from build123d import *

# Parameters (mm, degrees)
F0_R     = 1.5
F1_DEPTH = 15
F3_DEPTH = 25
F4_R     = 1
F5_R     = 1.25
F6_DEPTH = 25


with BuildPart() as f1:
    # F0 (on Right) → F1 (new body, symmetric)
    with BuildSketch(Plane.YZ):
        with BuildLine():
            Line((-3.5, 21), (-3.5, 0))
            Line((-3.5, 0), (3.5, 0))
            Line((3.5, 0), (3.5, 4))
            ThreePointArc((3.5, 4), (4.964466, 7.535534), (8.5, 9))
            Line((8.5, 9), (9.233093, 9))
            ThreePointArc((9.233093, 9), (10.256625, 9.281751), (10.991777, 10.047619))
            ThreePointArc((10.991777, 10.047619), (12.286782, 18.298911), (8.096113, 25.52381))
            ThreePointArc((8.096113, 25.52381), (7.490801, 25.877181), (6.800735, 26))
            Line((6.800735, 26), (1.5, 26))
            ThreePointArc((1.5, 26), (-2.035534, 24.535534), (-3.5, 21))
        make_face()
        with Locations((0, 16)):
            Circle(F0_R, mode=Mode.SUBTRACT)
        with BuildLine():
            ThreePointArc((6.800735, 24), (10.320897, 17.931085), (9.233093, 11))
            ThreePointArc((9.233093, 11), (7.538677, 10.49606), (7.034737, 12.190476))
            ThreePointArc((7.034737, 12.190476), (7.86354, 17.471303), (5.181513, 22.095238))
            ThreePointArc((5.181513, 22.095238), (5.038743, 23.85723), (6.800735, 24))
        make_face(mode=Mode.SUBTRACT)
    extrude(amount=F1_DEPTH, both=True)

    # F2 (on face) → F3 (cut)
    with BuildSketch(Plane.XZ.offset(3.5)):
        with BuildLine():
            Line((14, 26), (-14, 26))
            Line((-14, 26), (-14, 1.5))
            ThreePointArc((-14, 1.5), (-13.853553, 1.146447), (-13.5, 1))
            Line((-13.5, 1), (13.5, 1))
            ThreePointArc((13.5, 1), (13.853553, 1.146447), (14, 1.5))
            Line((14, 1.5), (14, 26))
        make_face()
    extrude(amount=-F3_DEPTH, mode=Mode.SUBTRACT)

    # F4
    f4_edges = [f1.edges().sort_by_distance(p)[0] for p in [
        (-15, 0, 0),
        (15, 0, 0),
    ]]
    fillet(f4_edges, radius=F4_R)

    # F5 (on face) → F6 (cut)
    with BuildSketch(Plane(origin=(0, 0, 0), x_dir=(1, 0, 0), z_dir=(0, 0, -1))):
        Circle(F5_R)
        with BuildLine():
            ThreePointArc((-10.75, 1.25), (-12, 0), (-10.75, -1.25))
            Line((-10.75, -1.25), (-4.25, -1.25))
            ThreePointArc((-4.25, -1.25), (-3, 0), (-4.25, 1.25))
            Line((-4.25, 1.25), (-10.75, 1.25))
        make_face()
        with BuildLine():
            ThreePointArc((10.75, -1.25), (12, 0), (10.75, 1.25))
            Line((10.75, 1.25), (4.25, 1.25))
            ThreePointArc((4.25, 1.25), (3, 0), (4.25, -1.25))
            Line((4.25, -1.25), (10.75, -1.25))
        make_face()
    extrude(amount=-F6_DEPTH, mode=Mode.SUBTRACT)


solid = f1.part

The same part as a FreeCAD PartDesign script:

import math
import FreeCAD as App
import Part
import Sketcher

V = App.Vector
Q = App.Units.Quantity


def edges_at(feature, points):
    """Names of the edges that pass closest to the given points."""
    edges = feature.Shape.Edges
    near = lambda p: min(range(len(edges)), key=lambda i: edges[i].distToShape(Part.Vertex(*p))[0])
    return sorted({f"Edge{near(p) + 1}" for p in points})

doc = App.newDocument("Part")
body = doc.addObject("PartDesign::Body", "Body")

# Sketch on YZ plane
sketch1 = body.newObject("Sketcher::SketchObject", "Sketch")
sketch1.AttachmentSupport = (doc.getObject("YZ_Plane"), [""])
sketch1.MapMode = "FlatFace"
sketch1.addGeometry(Part.LineSegment(V(-3.5, 21, 0), V(-3.5, 0, 0)), False)
sketch1.addGeometry(Part.LineSegment(V(-3.5, 0, 0), V(3.5, 0, 0)), False)
sketch1.addGeometry(Part.LineSegment(V(3.5, 0, 0), V(3.5, 4, 0)), False)
sketch1.addGeometry(Part.ArcOfCircle(Part.Circle(V(8.5, 4, 0), V(0, 0, 1), 5), math.radians(90), math.radians(180)), False)
sketch1.addGeometry(Part.LineSegment(V(8.5, 9, 0), V(9.2, 9, 0)), False)
sketch1.addGeometry(Part.ArcOfCircle(Part.Circle(V(9.2, 11, 0), V(0, 0, 1), 2), math.radians(-90), math.radians(-28)), False)
sketch1.addGeometry(Part.ArcOfCircle(Part.Circle(V(0, 16, 0), V(0, 0, 1), 12.5), math.radians(-28), math.radians(50)), False)
sketch1.addGeometry(Part.ArcOfCircle(Part.Circle(V(6.8, 24, 0), V(0, 0, 1), 2), math.radians(50), math.radians(90)), False)
sketch1.addGeometry(Part.LineSegment(V(6.8, 26, 0), V(1.5, 26, 0)), False)
sketch1.addGeometry(Part.ArcOfCircle(Part.Circle(V(1.5, 21, 0), V(0, 0, 1), 5), math.radians(90), math.radians(180)), False)
sketch1.addGeometry(Part.Circle(V(0, 16, 0), V(0, 0, 1), 1.5), False)
sketch1.addGeometry(Part.ArcOfCircle(Part.Circle(V(6, 23, 0), V(0, 0, 1), 1.2), math.radians(50), math.radians(230)), False)
sketch1.addGeometry(Part.ArcOfCircle(Part.Circle(V(0, 16, 0), V(0, 0, 1), 10.5), math.radians(-28), math.radians(50)), False)
sketch1.addGeometry(Part.ArcOfCircle(Part.Circle(V(8.1, 11.6, 0), V(0, 0, 1), 1.3), math.radians(152), math.radians(332)), False)
sketch1.addGeometry(Part.ArcOfCircle(Part.Circle(V(0, 16, 0), V(0, 0, 1), 8), math.radians(-28), math.radians(50)), False)
sketch1.addConstraint(Sketcher.Constraint("Coincident", 0, 2, 1, 1))
sketch1.addConstraint(Sketcher.Constraint("Coincident", 1, 2, 2, 1))
sketch1.addConstraint(Sketcher.Constraint("Tangent", 2, 2, 3, 2))
sketch1.addConstraint(Sketcher.Constraint("Tangent", 3, 1, 4, 1))
sketch1.addConstraint(Sketcher.Constraint("Tangent", 4, 2, 5, 1))
sketch1.addConstraint(Sketcher.Constraint("Tangent", 5, 2, 6, 1))
sketch1.addConstraint(Sketcher.Constraint("Tangent", 6, 2, 7, 1))
sketch1.addConstraint(Sketcher.Constraint("Tangent", 7, 2, 8, 1))
sketch1.addConstraint(Sketcher.Constraint("Tangent", 8, 2, 9, 1))
sketch1.addConstraint(Sketcher.Constraint("Tangent", 9, 2, 0, 1))
sketch1.addConstraint(Sketcher.Constraint("Tangent", 11, 1, 12, 2))
sketch1.addConstraint(Sketcher.Constraint("Tangent", 12, 1, 13, 2))
sketch1.addConstraint(Sketcher.Constraint("Tangent", 13, 1, 14, 1))
sketch1.addConstraint(Sketcher.Constraint("Tangent", 14, 2, 11, 2))
sketch1.addConstraint(Sketcher.Constraint("Vertical", 0))
sketch1.addConstraint(Sketcher.Constraint("Horizontal", 1))
sketch1.addConstraint(Sketcher.Constraint("Vertical", 2))
sketch1.addConstraint(Sketcher.Constraint("Horizontal", 4))
sketch1.addConstraint(Sketcher.Constraint("Horizontal", 8))
sketch1.addConstraint(Sketcher.Constraint("Coincident", 10, 3, 6, 3))
sketch1.addConstraint(Sketcher.Constraint("Coincident", 12, 3, 6, 3))
sketch1.addConstraint(Sketcher.Constraint("Coincident", 14, 3, 6, 3))
sketch1.addConstraint(Sketcher.Constraint("Coincident", 11, 1, 7, 3))
sketch1.addConstraint(Sketcher.Constraint("Coincident", 12, 1, 5, 3))
sketch1.addConstraint(Sketcher.Constraint("Equal", 3, 9))
sketch1.addConstraint(Sketcher.Constraint("Symmetric", 0, 2, 1, 2, -1, 1))
sketch1.addConstraint(Sketcher.Constraint("PointOnObject", 6, 3, -2))
sketch1.addConstraint(Sketcher.Constraint("Diameter", 10, Q("3 mm")))
sketch1.addConstraint(Sketcher.Constraint("Radius", 3, Q("5 mm")))
sketch1.addConstraint(Sketcher.Constraint("Radius", 14, Q("8.000001 mm")))
sketch1.addConstraint(Sketcher.Constraint("Radius", 6, Q("12.5 mm")))
sketch1.addConstraint(Sketcher.Constraint("Radius", 12, Q("10.5 mm")))
sketch1.addConstraint(Sketcher.Constraint("DistanceX", 1, 1, 1, 2, Q("7 mm")))
sketch1.addConstraint(Sketcher.Constraint("DistanceY", 0, 2, 0, 1, Q("21 mm")))
sketch1.addConstraint(Sketcher.Constraint("DistanceY", 2, 1, 2, 2, Q("4 mm")))
sketch1.addConstraint(Sketcher.Constraint("DistanceY", -1, 1, 6, 3, Q("16 mm")))
pad1 = body.newObject("PartDesign::Pad", "Pad")
pad1.Profile = sketch1
pad1.Length = 30
pad1.Midplane = True

# Sketch on XZ plane
sketch2 = body.newObject("Sketcher::SketchObject", "Sketch001")
sketch2.AttachmentSupport = (doc.getObject("XZ_Plane"), [""])
sketch2.MapMode = "FlatFace"
sketch2.AttachmentOffset = App.Placement(V(0, 0, 3.5), App.Rotation())
sketch2.addGeometry(Part.LineSegment(V(14, 26, 0), V(-14, 26, 0)), False)
sketch2.addGeometry(Part.LineSegment(V(-14, 26, 0), V(-14, 1.5, 0)), False)
sketch2.addGeometry(Part.ArcOfCircle(Part.Circle(V(-13.5, 1.5, 0), V(0, 0, 1), 0.5), math.radians(-180), math.radians(-90)), False)
sketch2.addGeometry(Part.LineSegment(V(-13.5, 1, 0), V(13.5, 1, 0)), False)
sketch2.addGeometry(Part.ArcOfCircle(Part.Circle(V(13.5, 1.5, 0), V(0, 0, 1), 0.5), math.radians(-90), math.radians(0)), False)
sketch2.addGeometry(Part.LineSegment(V(14, 1.5, 0), V(14, 26, 0)), False)
sketch2.addConstraint(Sketcher.Constraint("Coincident", 0, 2, 1, 1))
sketch2.addConstraint(Sketcher.Constraint("Coincident", 1, 2, 2, 1))
sketch2.addConstraint(Sketcher.Constraint("Coincident", 2, 2, 3, 1))
sketch2.addConstraint(Sketcher.Constraint("Coincident", 3, 2, 4, 1))
sketch2.addConstraint(Sketcher.Constraint("Coincident", 4, 2, 5, 1))
sketch2.addConstraint(Sketcher.Constraint("Coincident", 5, 2, 0, 1))
sketch2.addConstraint(Sketcher.Constraint("Horizontal", 0))
sketch2.addConstraint(Sketcher.Constraint("Vertical", 1))
sketch2.addConstraint(Sketcher.Constraint("Horizontal", 3))
sketch2.addConstraint(Sketcher.Constraint("Vertical", 5))
sketch2.addConstraint(Sketcher.Constraint("Equal", 2, 4))
sketch2.addConstraint(Sketcher.Constraint("Symmetric", 1, 2, 4, 2, -2))
sketch2.addConstraint(Sketcher.Constraint("Horizontal", 4, 3, 1, 2))
sketch2.addConstraint(Sketcher.Constraint("Vertical", 4, 3, 3, 2))
sketch2.addConstraint(Sketcher.Constraint("Radius", 2, Q("0.500001 mm")))
sketch2.addConstraint(Sketcher.Constraint("DistanceX", 0, 2, 0, 1, Q("28 mm")))
sketch2.addConstraint(Sketcher.Constraint("DistanceX", 3, 1, 3, 2, Q("27 mm")))
sketch2.addConstraint(Sketcher.Constraint("DistanceY", 1, 2, 1, 1, Q("24.5 mm")))
sketch2.addConstraint(Sketcher.Constraint("DistanceY", -1, 1, 0, 2, Q("26 mm")))
pocket1 = body.newObject("PartDesign::Pocket", "Pocket")
pocket1.Profile = sketch2
pocket1.Length = 25
doc.recompute()

fillet = body.newObject("PartDesign::Fillet", "Fillet")
fillet.Base = (pocket1, edges_at(pocket1, [(-15, 0, 0), (15, 0, 0)]))
fillet.Radius = 1

# Sketch on XY plane
sketch3 = body.newObject("Sketcher::SketchObject", "Sketch002")
sketch3.AttachmentSupport = (doc.getObject("XY_Plane"), [""])
sketch3.MapMode = "FlatFace"
sketch3.addGeometry(Part.Circle(V(0, 0, 0), V(0, 0, 1), 1.2), False)
sketch3.addGeometry(Part.ArcOfCircle(Part.Circle(V(-10.8, 0, 0), V(0, 0, 1), 1.2), math.radians(90), math.radians(270)), False)
sketch3.addGeometry(Part.LineSegment(V(-10.8, 1.2, 0), V(-4.2, 1.2, 0)), False)
sketch3.addGeometry(Part.ArcOfCircle(Part.Circle(V(-4.2, 0, 0), V(0, 0, 1), 1.2), math.radians(-90), math.radians(90)), False)
sketch3.addGeometry(Part.LineSegment(V(-4.2, -1.2, 0), V(-10.8, -1.2, 0)), False)
sketch3.addGeometry(Part.ArcOfCircle(Part.Circle(V(10.8, 0, 0), V(0, 0, 1), 1.2), math.radians(-90), math.radians(90)), False)
sketch3.addGeometry(Part.LineSegment(V(10.8, -1.2, 0), V(4.2, -1.2, 0)), False)
sketch3.addGeometry(Part.ArcOfCircle(Part.Circle(V(4.2, 0, 0), V(0, 0, 1), 1.2), math.radians(90), math.radians(270)), False)
sketch3.addGeometry(Part.LineSegment(V(4.2, 1.2, 0), V(10.8, 1.2, 0)), False)
sketch3.addConstraint(Sketcher.Constraint("Tangent", 1, 1, 2, 1))
sketch3.addConstraint(Sketcher.Constraint("Tangent", 2, 2, 3, 2))
sketch3.addConstraint(Sketcher.Constraint("Tangent", 3, 1, 4, 1))
sketch3.addConstraint(Sketcher.Constraint("Tangent", 4, 2, 1, 2))
sketch3.addConstraint(Sketcher.Constraint("Tangent", 5, 1, 6, 1))
sketch3.addConstraint(Sketcher.Constraint("Tangent", 6, 2, 7, 2))
sketch3.addConstraint(Sketcher.Constraint("Tangent", 7, 1, 8, 1))
sketch3.addConstraint(Sketcher.Constraint("Tangent", 8, 2, 5, 2))
sketch3.addConstraint(Sketcher.Constraint("Horizontal", 2))
sketch3.addConstraint(Sketcher.Constraint("Horizontal", 4))
sketch3.addConstraint(Sketcher.Constraint("Horizontal", 6))
sketch3.addConstraint(Sketcher.Constraint("Horizontal", 8))
sketch3.addConstraint(Sketcher.Constraint("Coincident", 0, 3, -1, 1))
sketch3.addConstraint(Sketcher.Constraint("Equal", 0, 1))
sketch3.addConstraint(Sketcher.Constraint("Equal", 3, 5))
sketch3.addConstraint(Sketcher.Constraint("Symmetric", 1, 3, 5, 3, -1, 1))
sketch3.addConstraint(Sketcher.Constraint("Symmetric", 3, 3, 7, 3, -2))
sketch3.addConstraint(Sketcher.Constraint("Diameter", 0, Q("2.5 mm")))
sketch3.addConstraint(Sketcher.Constraint("DistanceX", 2, 1, 2, 2, Q("6.5 mm")))
sketch3.addConstraint(Sketcher.Constraint("DistanceX", 3, 3, 5, 3, Q("15 mm")))
pocket2 = body.newObject("PartDesign::Pocket", "Pocket001")
pocket2.Profile = sketch3
pocket2.Length = 25
pocket2.Reversed = True

doc.recompute()
